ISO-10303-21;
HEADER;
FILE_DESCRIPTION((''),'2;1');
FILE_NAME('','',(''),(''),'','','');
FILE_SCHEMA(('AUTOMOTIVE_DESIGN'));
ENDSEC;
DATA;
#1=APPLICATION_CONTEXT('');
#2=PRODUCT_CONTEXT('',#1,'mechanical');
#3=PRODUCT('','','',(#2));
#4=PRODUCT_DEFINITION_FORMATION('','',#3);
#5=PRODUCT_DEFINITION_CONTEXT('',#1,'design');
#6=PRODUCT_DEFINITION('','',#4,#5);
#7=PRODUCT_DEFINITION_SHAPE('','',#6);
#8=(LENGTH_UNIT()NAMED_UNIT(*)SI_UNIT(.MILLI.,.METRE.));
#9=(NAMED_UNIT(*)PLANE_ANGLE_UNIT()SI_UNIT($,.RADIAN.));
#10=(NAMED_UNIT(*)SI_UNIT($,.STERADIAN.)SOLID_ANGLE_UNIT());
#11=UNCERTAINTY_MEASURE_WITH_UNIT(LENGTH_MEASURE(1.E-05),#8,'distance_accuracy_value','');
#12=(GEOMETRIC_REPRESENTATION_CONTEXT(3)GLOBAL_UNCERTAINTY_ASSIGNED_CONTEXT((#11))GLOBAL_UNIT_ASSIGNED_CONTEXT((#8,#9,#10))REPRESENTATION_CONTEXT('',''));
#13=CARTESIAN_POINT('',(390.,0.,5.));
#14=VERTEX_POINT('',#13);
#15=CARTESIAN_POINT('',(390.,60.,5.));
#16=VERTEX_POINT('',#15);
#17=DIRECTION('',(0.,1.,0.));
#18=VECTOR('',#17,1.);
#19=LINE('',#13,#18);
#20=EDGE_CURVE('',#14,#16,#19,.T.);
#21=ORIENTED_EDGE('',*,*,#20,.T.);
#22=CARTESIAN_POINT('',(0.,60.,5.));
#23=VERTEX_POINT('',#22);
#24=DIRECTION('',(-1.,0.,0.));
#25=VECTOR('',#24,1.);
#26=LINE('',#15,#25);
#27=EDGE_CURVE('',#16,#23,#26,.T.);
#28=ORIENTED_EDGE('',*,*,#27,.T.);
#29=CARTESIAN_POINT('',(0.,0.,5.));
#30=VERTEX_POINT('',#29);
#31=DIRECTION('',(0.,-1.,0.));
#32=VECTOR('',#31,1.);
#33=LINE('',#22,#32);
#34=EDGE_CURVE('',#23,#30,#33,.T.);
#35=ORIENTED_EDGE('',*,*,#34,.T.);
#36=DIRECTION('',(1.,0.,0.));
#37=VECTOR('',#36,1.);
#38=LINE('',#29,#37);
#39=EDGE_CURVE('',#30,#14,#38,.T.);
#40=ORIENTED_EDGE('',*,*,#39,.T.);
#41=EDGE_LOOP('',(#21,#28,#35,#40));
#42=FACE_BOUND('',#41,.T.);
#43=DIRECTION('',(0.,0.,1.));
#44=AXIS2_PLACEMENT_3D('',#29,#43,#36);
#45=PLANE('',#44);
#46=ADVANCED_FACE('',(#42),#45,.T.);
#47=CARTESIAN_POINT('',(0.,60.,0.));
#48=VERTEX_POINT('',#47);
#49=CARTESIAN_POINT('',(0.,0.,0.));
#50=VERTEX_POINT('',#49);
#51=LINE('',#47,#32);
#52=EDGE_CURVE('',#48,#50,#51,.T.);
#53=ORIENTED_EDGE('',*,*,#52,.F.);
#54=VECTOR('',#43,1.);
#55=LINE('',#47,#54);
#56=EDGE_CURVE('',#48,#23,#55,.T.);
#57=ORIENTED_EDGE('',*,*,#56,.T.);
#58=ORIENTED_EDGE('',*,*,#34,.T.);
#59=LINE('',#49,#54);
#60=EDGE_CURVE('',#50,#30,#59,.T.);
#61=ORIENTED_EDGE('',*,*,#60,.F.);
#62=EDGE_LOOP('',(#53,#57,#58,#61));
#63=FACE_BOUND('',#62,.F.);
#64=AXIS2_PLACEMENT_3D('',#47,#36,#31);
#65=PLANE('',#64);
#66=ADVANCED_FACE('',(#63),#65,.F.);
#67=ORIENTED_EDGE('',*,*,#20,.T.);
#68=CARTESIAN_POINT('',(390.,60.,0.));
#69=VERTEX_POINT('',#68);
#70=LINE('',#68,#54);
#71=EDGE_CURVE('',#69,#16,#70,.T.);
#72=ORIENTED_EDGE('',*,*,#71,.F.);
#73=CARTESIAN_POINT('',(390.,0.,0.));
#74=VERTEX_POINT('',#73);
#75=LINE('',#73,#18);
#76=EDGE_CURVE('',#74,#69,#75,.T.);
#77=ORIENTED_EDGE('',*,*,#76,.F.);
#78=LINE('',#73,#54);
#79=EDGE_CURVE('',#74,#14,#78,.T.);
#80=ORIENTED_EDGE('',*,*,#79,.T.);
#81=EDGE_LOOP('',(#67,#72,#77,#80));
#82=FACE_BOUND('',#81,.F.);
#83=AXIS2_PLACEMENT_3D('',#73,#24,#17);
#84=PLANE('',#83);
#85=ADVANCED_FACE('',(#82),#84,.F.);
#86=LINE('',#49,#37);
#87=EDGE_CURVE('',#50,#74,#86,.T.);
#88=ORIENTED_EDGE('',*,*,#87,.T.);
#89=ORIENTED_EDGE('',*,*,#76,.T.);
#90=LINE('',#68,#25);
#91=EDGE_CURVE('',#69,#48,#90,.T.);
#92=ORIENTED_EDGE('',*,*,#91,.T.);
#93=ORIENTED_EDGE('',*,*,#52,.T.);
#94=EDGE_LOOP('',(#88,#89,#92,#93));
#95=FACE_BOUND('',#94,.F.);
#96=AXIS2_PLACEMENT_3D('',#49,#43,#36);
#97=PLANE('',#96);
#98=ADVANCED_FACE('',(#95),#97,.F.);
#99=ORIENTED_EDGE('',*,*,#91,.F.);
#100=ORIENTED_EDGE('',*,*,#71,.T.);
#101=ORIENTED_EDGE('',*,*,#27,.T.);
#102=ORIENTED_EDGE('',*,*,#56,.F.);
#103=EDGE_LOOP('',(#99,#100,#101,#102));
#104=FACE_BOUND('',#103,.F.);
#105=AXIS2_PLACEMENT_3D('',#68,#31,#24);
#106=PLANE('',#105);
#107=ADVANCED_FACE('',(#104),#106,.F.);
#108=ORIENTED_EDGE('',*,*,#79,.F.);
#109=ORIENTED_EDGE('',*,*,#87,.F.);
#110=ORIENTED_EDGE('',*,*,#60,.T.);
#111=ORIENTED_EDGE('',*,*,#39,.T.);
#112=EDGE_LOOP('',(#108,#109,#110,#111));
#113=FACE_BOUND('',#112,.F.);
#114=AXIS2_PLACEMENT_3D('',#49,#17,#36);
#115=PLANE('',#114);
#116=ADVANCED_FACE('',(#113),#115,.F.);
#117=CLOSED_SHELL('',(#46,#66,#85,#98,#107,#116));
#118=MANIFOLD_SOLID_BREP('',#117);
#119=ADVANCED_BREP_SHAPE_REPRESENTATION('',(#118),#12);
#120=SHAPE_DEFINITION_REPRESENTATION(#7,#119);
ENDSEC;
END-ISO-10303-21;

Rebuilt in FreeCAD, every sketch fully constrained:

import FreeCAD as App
import Part
import Sketcher
Q = App.Units.Quantity


def add_polygon(sketch, points):
    """Adds a closed chain of lines whose ends are joined by coincident constraints."""
    first, n = sketch.GeometryCount, len(points)
    for a, b in zip(points, points[1:] + points[:1]):
        sketch.addGeometry(Part.LineSegment(App.Vector(*a, 0), App.Vector(*b, 0)), False)
    for i in range(n):
        sketch.addConstraint(Sketcher.Constraint("Coincident", first + i, 2, first + (i + 1) % n, 1))

doc = App.newDocument("Part")
params = doc.addObject("Spreadsheet::Sheet", "Params")
for row, (alias, value) in enumerate([
    ("sketch1_width", "390 mm"),
    ("sketch1_height", "60 mm"),
    ("pad1_length", "5 mm"),
], start=1):
    params.set(f"A{row}", alias)
    params.set(f"B{row}", "=" + value)
    params.setAlias(f"B{row}", alias)

body = doc.addObject("PartDesign::Body", "Body")

sketch1 = doc.addObject("Sketcher::SketchObject", "Sketch")
body.addObject(sketch1)
sketch1.AttachmentSupport = (doc.XY_Plane, [""])
sketch1.MapMode = "FlatFace"
add_polygon(sketch1, [(0, 60), (0, 0), (390, 0), (390, 60)])
sketch1.addConstraint([
    Sketcher.Constraint("Vertical", 0),
    Sketcher.Constraint("Horizontal", 1),
    Sketcher.Constraint("Vertical", 2),
    Sketcher.Constraint("Horizontal", 3),
    Sketcher.Constraint("Coincident", 0, 2, -1, 1),
    Sketcher.Constraint("DistanceX", 1, 1, 1, 2, Q("390 mm")),
    Sketcher.Constraint("DistanceY", 0, 2, 0, 1, Q("60 mm")),
])
sketch1.setExpression("Constraints[9]", "Params.sketch1_width")
sketch1.setExpression("Constraints[10]", "Params.sketch1_height")
pad1 = doc.addObject("PartDesign::Pad", "Pad")
body.addObject(pad1)
pad1.Profile = sketch1
pad1.setExpression("Length", "Params.pad1_length")

doc.recompute()
